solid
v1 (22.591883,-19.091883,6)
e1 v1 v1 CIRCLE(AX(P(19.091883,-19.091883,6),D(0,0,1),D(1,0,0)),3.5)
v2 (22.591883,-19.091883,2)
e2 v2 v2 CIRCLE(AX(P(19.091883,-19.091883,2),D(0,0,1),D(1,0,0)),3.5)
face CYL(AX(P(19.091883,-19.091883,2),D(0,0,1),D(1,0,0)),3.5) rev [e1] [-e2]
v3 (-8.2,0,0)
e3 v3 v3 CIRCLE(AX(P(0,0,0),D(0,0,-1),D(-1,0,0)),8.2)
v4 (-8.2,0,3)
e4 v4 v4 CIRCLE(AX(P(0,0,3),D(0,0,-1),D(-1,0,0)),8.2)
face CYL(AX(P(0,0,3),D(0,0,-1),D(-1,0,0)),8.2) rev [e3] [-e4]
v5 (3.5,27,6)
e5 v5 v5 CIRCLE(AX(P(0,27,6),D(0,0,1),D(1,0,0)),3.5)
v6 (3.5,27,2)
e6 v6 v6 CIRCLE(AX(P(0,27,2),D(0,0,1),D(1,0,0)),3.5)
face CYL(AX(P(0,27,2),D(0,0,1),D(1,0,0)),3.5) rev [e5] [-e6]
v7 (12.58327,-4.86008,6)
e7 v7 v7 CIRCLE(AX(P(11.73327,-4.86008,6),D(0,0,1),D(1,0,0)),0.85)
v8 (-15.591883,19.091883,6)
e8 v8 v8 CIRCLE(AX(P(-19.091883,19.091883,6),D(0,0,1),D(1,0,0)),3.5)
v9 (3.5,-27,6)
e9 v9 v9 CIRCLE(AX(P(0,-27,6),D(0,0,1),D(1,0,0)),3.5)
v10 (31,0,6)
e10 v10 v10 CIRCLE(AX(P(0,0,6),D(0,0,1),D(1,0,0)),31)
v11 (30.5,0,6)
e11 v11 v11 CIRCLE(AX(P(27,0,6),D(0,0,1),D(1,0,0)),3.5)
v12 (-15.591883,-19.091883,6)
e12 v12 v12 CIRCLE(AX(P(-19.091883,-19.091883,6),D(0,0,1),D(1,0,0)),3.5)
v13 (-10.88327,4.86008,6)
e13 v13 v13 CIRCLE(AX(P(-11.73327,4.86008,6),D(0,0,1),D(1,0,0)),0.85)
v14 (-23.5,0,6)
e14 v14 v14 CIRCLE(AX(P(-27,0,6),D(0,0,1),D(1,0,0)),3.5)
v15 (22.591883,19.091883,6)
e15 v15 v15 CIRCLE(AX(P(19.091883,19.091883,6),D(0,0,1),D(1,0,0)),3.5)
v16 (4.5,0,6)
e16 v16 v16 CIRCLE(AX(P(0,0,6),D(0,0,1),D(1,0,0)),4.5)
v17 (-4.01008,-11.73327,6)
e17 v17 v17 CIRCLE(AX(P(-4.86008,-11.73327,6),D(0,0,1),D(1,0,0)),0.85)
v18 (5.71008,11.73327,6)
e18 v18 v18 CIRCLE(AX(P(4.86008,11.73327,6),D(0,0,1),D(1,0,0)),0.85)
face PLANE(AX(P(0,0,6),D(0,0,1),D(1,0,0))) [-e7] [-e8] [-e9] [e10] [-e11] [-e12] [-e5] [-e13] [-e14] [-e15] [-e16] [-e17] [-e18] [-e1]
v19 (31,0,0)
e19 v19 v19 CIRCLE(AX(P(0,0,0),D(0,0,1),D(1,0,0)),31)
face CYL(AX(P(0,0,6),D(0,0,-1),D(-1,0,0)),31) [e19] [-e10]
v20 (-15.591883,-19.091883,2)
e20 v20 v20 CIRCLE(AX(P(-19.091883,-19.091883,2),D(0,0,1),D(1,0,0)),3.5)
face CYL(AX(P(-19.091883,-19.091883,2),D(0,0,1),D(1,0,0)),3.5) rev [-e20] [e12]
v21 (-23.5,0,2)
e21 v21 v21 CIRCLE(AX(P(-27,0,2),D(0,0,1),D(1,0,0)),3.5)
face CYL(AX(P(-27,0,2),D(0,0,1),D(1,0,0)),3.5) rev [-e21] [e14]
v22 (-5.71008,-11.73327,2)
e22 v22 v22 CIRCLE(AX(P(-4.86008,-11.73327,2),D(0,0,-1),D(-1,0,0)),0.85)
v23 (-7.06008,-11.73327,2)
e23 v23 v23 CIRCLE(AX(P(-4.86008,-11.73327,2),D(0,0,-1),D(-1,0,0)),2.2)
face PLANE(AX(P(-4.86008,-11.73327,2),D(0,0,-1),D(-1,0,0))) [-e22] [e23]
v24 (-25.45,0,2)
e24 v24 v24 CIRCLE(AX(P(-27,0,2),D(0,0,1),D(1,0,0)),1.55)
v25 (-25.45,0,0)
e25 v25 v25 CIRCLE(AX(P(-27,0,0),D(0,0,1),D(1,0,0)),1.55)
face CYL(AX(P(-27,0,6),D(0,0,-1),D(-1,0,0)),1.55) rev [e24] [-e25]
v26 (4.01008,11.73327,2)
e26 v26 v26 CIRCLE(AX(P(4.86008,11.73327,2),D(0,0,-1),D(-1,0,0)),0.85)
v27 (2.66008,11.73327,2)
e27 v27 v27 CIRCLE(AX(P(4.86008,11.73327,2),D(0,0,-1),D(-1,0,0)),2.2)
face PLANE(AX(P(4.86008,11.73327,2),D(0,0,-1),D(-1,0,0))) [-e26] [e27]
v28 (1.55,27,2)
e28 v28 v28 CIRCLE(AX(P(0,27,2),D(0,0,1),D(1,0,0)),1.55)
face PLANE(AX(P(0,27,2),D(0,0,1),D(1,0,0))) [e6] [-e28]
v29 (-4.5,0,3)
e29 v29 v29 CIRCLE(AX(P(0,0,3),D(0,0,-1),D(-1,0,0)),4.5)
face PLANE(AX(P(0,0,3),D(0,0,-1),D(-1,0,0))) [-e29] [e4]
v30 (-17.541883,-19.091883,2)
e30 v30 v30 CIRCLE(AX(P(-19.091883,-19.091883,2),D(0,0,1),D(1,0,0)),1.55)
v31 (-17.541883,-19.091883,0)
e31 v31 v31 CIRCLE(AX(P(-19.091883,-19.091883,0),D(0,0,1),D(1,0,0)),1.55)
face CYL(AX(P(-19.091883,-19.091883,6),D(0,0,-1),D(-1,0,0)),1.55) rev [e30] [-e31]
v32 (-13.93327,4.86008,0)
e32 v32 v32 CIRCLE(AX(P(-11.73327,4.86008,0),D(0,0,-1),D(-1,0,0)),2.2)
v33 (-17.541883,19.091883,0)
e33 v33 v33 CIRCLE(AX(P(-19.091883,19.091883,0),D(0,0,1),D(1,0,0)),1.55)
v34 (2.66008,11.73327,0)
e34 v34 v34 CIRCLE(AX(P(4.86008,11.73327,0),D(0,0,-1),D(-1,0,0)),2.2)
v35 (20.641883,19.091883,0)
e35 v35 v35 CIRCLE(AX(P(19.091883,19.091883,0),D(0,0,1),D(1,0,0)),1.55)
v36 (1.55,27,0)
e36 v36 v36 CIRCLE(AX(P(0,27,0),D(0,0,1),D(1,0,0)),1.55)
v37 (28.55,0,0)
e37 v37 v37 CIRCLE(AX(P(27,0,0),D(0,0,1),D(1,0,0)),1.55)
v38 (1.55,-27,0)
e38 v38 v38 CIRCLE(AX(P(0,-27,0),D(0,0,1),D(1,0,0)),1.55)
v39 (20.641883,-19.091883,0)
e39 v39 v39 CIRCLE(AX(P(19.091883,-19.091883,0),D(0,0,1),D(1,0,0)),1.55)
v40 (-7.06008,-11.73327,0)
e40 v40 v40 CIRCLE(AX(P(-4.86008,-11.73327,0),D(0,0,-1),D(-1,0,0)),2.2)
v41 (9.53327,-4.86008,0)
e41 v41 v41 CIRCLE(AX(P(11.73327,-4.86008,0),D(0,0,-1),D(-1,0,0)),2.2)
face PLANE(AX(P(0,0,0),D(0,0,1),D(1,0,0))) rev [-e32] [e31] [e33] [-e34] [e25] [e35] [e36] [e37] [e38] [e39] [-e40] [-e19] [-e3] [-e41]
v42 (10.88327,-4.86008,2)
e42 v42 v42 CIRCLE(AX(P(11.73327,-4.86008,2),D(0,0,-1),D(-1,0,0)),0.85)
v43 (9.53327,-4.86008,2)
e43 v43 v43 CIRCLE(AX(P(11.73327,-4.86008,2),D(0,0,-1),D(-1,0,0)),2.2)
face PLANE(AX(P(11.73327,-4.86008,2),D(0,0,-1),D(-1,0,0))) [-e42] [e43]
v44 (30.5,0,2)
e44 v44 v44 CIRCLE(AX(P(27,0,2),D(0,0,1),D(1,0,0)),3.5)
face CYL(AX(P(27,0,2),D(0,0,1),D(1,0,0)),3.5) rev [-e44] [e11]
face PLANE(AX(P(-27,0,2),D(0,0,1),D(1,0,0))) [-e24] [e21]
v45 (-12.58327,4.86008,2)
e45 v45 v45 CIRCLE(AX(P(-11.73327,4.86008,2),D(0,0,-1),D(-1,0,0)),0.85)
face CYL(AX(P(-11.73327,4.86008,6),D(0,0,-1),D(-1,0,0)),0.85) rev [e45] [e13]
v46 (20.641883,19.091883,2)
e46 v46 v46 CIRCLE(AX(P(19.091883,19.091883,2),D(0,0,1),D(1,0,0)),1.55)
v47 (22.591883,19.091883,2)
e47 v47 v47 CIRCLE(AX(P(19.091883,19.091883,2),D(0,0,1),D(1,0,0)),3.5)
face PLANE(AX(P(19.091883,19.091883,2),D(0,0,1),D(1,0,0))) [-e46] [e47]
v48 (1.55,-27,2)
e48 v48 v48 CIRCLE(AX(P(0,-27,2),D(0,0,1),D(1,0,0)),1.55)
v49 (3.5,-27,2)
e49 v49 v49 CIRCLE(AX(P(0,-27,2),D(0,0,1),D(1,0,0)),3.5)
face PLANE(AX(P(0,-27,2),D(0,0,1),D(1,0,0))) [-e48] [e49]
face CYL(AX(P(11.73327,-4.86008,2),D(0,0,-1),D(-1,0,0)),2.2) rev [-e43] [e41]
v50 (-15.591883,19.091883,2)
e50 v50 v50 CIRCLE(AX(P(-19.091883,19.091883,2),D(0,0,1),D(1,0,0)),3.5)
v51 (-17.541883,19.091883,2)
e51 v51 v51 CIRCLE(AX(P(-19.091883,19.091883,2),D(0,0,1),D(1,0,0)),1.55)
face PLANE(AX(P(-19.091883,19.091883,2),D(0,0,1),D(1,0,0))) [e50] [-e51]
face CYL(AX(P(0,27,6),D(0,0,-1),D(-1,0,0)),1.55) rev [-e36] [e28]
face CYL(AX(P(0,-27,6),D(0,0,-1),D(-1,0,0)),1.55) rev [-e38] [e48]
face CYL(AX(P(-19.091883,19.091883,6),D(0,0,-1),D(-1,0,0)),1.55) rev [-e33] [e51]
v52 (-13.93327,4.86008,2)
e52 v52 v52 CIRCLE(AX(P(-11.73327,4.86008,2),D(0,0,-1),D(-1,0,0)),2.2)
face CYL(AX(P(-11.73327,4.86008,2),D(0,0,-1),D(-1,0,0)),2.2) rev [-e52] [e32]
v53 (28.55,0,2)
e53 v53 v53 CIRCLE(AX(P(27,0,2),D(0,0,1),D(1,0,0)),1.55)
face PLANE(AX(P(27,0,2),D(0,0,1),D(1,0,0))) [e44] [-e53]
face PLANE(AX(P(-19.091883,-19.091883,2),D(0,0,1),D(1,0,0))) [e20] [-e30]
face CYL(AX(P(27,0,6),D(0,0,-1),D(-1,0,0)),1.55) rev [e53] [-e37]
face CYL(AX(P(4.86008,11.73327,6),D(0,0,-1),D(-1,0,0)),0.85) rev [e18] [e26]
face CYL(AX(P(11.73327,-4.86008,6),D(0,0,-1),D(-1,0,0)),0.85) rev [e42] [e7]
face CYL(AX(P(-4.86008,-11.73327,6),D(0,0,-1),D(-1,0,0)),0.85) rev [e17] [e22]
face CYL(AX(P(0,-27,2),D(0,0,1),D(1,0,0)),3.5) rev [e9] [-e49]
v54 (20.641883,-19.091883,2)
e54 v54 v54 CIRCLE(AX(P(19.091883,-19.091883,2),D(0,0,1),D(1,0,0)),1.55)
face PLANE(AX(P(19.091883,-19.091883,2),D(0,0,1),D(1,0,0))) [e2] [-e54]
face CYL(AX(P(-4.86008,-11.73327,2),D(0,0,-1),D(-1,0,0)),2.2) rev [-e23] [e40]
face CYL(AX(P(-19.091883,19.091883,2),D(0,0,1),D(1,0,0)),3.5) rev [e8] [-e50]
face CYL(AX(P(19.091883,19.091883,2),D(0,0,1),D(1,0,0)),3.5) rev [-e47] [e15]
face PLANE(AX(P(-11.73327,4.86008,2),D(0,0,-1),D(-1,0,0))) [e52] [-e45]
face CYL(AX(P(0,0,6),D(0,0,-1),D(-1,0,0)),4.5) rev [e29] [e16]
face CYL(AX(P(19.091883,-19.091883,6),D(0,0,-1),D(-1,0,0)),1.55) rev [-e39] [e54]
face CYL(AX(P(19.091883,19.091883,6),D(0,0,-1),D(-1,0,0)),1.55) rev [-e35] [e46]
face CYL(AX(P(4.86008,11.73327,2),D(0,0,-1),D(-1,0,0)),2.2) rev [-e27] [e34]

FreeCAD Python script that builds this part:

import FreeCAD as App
import Part
import Sketcher
Q = App.Units.Quantity

doc = App.newDocument("Part")
body = doc.addObject("PartDesign::Body", "Body")

# Sketch on XY plane
sketch1 = doc.addObject("Sketcher::SketchObject", "Sketch")
body.addObject(sketch1)
sketch1.AttachmentSupport = (doc.XY_Plane, [""])
sketch1.MapMode = "FlatFace"
sketch1.addGeometry([
    Part.Circle(App.Vector(0, 0, 0), App.Vector(0, 0, 1), 31),  # 0
    Part.Circle(App.Vector(-19.1, -19.1, 0), App.Vector(0, 0, 1), 1.6),  # 1
    Part.Circle(App.Vector(-4.9, -11.7, 0), App.Vector(0, 0, 1), 0.8),  # 2
    Part.Circle(App.Vector(0, -27, 0), App.Vector(0, 0, 1), 1.6),  # 3
    Part.Circle(App.Vector(19.1, -19.1, 0), App.Vector(0, 0, 1), 1.6),  # 4
    Part.Circle(App.Vector(0, 0, 0), App.Vector(0, 0, 1), 4.5),  # 5
    Part.Circle(App.Vector(11.7, -4.9, 0), App.Vector(0, 0, 1), 0.8),  # 6
    Part.Circle(App.Vector(-27, 0, 0), App.Vector(0, 0, 1), 1.6),  # 7
    Part.Circle(App.Vector(-11.7, 4.9, 0), App.Vector(0, 0, 1), 0.8),  # 8
    Part.Circle(App.Vector(-19.1, 19.1, 0), App.Vector(0, 0, 1), 1.6),  # 9
    Part.Circle(App.Vector(4.9, 11.7, 0), App.Vector(0, 0, 1), 0.8),  # 10
    Part.Circle(App.Vector(27, 0, 0), App.Vector(0, 0, 1), 1.6),  # 11
    Part.Circle(App.Vector(0, 27, 0), App.Vector(0, 0, 1), 1.6),  # 12
    Part.Circle(App.Vector(19.1, 19.1, 0), App.Vector(0, 0, 1), 1.6),  # 13
], False)
sketch1.addConstraint([
    Sketcher.Constraint("Coincident", 0, 3, -1, 1),
    Sketcher.Constraint("Coincident", 5, 3, -1, 1),
    Sketcher.Constraint("Equal", 1, 3),
    Sketcher.Constraint("Equal", 3, 4),
    Sketcher.Constraint("Equal", 2, 6),
    Sketcher.Constraint("Equal", 4, 7),
    Sketcher.Constraint("Equal", 6, 8),
    Sketcher.Constraint("Equal", 7, 9),
    Sketcher.Constraint("Equal", 8, 10),
    Sketcher.Constraint("Equal", 9, 11),
    Sketcher.Constraint("Equal", 11, 12),
    Sketcher.Constraint("Equal", 12, 13),
    Sketcher.Constraint("Symmetric", 6, 3, 8, 3, -1, 1),
    Sketcher.Constraint("Symmetric", 4, 3, 9, 3, -1, 1),
    Sketcher.Constraint("Symmetric", 2, 3, 10, 3, -1, 1),
    Sketcher.Constraint("Symmetric", 7, 3, 11, 3, -1, 1),
    Sketcher.Constraint("Symmetric", 3, 3, 12, 3, -1, 1),
    Sketcher.Constraint("Symmetric", 1, 3, 13, 3, -1, 1),
    Sketcher.Constraint("Symmetric", 1, 3, 4, 3, -2),
    Sketcher.Constraint("PointOnObject", 3, 3, -2),
    Sketcher.Constraint("PointOnObject", 7, 3, -1),
    Sketcher.Constraint("Diameter", 0, Q("62 mm")),
    Sketcher.Constraint("Diameter", 5, Q("9 mm")),
    Sketcher.Constraint("Diameter", 1, Q("3.1 mm")),
    Sketcher.Constraint("Diameter", 2, Q("1.7 mm")),
    Sketcher.Constraint("DistanceY", 3, 3, -1, 1, Q("27 mm")),
    Sketcher.Constraint("DistanceX", 7, 3, -1, 1, Q("27 mm")),
    Sketcher.Constraint("DistanceX", 2, 3, -1, 1, Q("4.86008 mm")),
    Sketcher.Constraint("DistanceY", 2, 3, -1, 1, Q("11.73327 mm")),
    Sketcher.Constraint("DistanceX", -1, 1, 6, 3, Q("11.73327 mm")),
    Sketcher.Constraint("DistanceY", 6, 3, -1, 1, Q("4.86008 mm")),
    Sketcher.Constraint("DistanceX", 1, 3, -1, 1, Q("19.091883 mm")),
    Sketcher.Constraint("DistanceY", 1, 3, -1, 1, Q("19.091883 mm")),
])
pad1 = doc.addObject("PartDesign::Pad", "Pad")
body.addObject(pad1)
pad1.Profile = sketch1
pad1.Length = 6

# Sketch on XY plane
sketch2 = doc.addObject("Sketcher::SketchObject", "Sketch001")
body.addObject(sketch2)
sketch2.AttachmentSupport = (doc.XY_Plane, [""])
sketch2.MapMode = "FlatFace"
sketch2.addGeometry(Part.Circle(App.Vector(0, 0, 0), App.Vector(0, 0, 1), 8), False)
sketch2.addConstraint([
    Sketcher.Constraint("Coincident", 0, 3, -1, 1),
    Sketcher.Constraint("Diameter", 0, Q("16.4 mm")),
])
pocket1 = doc.addObject("PartDesign::Pocket", "Pocket")
body.addObject(pocket1)
pocket1.Profile = sketch2
pocket1.Length = 3
pocket1.Reversed = True

# Sketch on XY plane
sketch3 = doc.addObject("Sketcher::SketchObject", "Sketch002")
body.addObject(sketch3)
sketch3.AttachmentSupport = (doc.XY_Plane, [""])
sketch3.MapMode = "FlatFace"
sketch3.AttachmentOffset = App.Placement(App.Vector(0, 0, 6), App.Rotation())
sketch3.addGeometry([
    Part.Circle(App.Vector(0, 27, 0), App.Vector(0, 0, 1), 3.5),  # 0
    Part.Circle(App.Vector(19.1, 19.1, 0), App.Vector(0, 0, 1), 3.5),  # 1
    Part.Circle(App.Vector(27, 0, 0), App.Vector(0, 0, 1), 3.5),  # 2
    Part.Circle(App.Vector(19.1, -19.1, 0), App.Vector(0, 0, 1), 3.5),  # 3
    Part.Circle(App.Vector(0, -27, 0), App.Vector(0, 0, 1), 3.5),  # 4
    Part.Circle(App.Vector(-19.1, -19.1, 0), App.Vector(0, 0, 1), 3.5),  # 5
    Part.Circle(App.Vector(-27, 0, 0), App.Vector(0, 0, 1), 3.5),  # 6
    Part.Circle(App.Vector(-19.1, 19.1, 0), App.Vector(0, 0, 1), 3.5),  # 7
], False)
sketch3.addConstraint([
    Sketcher.Constraint("Equal", 0, 1),
    Sketcher.Constraint("Equal", 1, 2),
    Sketcher.Constraint("Equal", 2, 3),
    Sketcher.Constraint("Equal", 3, 4),
    Sketcher.Constraint("Equal", 4, 5),
    Sketcher.Constraint("Equal", 5, 6),
    Sketcher.Constraint("Equal", 6, 7),
    Sketcher.Constraint("Symmetric", 0, 3, 4, 3, -1, 1),
    Sketcher.Constraint("Symmetric", 1, 3, 5, 3, -1, 1),
    Sketcher.Constraint("Symmetric", 2, 3, 6, 3, -1, 1),
    Sketcher.Constraint("Symmetric", 3, 3, 7, 3, -1, 1),
    Sketcher.Constraint("Symmetric", 3, 3, 5, 3, -2),
    Sketcher.Constraint("PointOnObject", 0, 3, -2),
    Sketcher.Constraint("PointOnObject", 2, 3, -1),
    Sketcher.Constraint("Diameter", 0, Q("7 mm")),
    Sketcher.Constraint("DistanceY", -1, 1, 0, 3, Q("27 mm")),
    Sketcher.Constraint("DistanceX", -1, 1, 2, 3, Q("27 mm")),
    Sketcher.Constraint("DistanceX", -1, 1, 1, 3, Q("19.091883 mm")),
    Sketcher.Constraint("DistanceY", -1, 1, 1, 3, Q("19.091883 mm")),
])
pocket2 = doc.addObject("PartDesign::Pocket", "Pocket001")
body.addObject(pocket2)
pocket2.Profile = sketch3
pocket2.Length = 4

# Sketch on XY plane
sketch4 = doc.addObject("Sketcher::SketchObject", "Sketch003")
body.addObject(sketch4)
sketch4.AttachmentSupport = (doc.XY_Plane, [""])
sketch4.MapMode = "FlatFace"
sketch4.addGeometry([
    Part.Circle(App.Vector(4.9, 11.7, 0), App.Vector(0, 0, 1), 2.2),
    Part.Circle(App.Vector(-11.7, 4.9, 0), App.Vector(0, 0, 1), 2.2),
    Part.Circle(App.Vector(-4.9, -11.7, 0), App.Vector(0, 0, 1), 2.2),
    Part.Circle(App.Vector(11.7, -4.9, 0), App.Vector(0, 0, 1), 2.2),
], False)
sketch4.addConstraint([
    Sketcher.Constraint("Equal", 0, 1),
    Sketcher.Constraint("Equal", 1, 2),
    Sketcher.Constraint("Equal", 2, 3),
    Sketcher.Constraint("Symmetric", 0, 3, 2, 3, -1, 1),
    Sketcher.Constraint("Symmetric", 1, 3, 3, 3, -1, 1),
    Sketcher.Constraint("Diameter", 0, Q("4.4 mm")),
    Sketcher.Constraint("DistanceX", -1, 1, 0, 3, Q("4.86008 mm")),
    Sketcher.Constraint("DistanceY", -1, 1, 0, 3, Q("11.73327 mm")),
    Sketcher.Constraint("DistanceX", 1, 3, -1, 1, Q("11.73327 mm")),
    Sketcher.Constraint("DistanceY", -1, 1, 1, 3, Q("4.86008 mm")),
])
pocket3 = doc.addObject("PartDesign::Pocket", "Pocket002")
body.addObject(pocket3)
pocket3.Profile = sketch4
pocket3.Length = 2
pocket3.Reversed = True

doc.recompute()
